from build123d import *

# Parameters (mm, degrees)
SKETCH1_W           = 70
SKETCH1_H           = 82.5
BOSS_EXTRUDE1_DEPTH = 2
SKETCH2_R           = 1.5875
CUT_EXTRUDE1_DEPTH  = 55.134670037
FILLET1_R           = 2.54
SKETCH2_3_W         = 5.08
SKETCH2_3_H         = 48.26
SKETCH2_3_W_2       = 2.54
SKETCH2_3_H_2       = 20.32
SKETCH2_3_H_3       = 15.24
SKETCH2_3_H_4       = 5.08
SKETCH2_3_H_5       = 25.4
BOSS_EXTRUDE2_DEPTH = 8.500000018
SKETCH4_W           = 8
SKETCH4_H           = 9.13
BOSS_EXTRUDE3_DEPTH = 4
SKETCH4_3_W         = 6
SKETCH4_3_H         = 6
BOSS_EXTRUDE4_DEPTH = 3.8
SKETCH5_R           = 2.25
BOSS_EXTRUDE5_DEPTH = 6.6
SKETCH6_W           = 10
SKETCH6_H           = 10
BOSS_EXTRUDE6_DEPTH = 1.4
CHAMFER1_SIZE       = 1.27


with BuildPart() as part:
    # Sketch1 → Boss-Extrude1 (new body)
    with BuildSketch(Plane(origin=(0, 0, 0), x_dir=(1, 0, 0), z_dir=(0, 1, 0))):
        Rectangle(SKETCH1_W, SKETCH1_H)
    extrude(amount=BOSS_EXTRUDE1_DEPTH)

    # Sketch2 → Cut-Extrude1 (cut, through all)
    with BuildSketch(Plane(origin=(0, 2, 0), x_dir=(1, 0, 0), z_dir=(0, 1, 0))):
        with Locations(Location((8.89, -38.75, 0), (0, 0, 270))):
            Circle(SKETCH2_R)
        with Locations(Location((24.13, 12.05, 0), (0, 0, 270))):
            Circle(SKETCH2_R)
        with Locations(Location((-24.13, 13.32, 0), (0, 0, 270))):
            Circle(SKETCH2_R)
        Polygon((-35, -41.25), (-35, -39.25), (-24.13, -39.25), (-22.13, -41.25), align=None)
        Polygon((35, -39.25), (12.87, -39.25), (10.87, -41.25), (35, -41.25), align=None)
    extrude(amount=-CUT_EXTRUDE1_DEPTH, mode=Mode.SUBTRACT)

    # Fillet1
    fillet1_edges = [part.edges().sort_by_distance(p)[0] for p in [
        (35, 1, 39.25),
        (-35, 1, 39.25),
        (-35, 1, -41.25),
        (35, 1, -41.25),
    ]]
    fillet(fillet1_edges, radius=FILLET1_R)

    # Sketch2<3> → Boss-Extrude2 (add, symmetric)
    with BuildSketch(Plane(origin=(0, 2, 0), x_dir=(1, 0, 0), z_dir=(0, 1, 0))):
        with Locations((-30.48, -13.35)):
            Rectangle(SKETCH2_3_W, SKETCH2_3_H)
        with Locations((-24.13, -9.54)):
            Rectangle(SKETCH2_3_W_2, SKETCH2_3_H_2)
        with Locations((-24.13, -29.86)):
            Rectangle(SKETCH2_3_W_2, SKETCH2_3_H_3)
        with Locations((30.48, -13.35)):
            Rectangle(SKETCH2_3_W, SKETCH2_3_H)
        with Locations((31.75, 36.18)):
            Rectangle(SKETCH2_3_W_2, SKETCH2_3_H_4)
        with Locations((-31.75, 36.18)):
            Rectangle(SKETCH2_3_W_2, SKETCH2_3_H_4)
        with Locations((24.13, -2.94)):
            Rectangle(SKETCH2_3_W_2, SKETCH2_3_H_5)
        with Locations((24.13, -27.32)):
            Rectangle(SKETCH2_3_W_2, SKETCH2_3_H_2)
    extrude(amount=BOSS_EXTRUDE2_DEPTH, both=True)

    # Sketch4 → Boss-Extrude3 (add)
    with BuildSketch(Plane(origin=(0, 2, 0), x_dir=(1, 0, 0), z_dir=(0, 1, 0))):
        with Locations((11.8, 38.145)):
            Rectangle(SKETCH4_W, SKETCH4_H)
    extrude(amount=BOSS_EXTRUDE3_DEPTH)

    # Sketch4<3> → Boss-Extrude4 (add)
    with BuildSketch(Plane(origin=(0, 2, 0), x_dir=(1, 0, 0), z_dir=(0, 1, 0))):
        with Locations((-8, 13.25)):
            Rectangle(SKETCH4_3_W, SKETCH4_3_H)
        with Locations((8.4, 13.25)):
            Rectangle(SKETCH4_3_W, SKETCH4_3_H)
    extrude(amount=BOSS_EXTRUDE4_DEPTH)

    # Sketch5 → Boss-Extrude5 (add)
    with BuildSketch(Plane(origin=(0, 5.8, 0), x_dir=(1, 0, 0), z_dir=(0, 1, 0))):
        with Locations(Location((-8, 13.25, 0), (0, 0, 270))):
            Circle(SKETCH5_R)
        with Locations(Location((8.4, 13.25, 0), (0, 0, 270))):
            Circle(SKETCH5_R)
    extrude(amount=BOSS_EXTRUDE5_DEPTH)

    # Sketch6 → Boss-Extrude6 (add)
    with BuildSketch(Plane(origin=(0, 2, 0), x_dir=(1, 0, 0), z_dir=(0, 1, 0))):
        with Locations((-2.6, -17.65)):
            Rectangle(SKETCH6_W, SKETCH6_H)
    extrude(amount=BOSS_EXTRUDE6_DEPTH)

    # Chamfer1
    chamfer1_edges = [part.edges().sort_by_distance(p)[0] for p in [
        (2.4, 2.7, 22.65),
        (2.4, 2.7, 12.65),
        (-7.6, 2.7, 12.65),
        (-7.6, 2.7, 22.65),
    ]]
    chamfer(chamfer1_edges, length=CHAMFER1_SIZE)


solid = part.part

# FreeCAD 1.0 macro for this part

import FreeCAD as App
import Part
import Sketcher
from FreeCAD import Vector
Q = App.Units.Quantity


def edges_at(feature, points):
    """Names of the edges that pass closest to the given points."""
    edges = feature.Shape.Edges
    near = lambda p: min(range(len(edges)), key=lambda i: edges[i].distToShape(Part.Vertex(*p))[0])
    return sorted({f"Edge{near(p) + 1}" for p in points})

doc = App.newDocument("Part")
body = doc.addObject("PartDesign::Body", "Body")

# Sketch on XZ plane
sketch1 = doc.addObject("Sketcher::SketchObject", "Sketch")
body.addObject(sketch1)
sketch1.AttachmentSupport = (doc.XZ_Plane, [""])
sketch1.MapMode = "FlatFace"
sketch1.addGeometry([
    Part.LineSegment(Vector(-35, -41, 0), Vector(-35, 41, 0)),
    Part.LineSegment(Vector(-35, 41, 0), Vector(35, 41, 0)),
    Part.LineSegment(Vector(35, 41, 0), Vector(35, -41, 0)),
    Part.LineSegment(Vector(35, -41, 0), Vector(-35, -41, 0)),
], False)
sketch1.addConstraint([
    Sketcher.Constraint("Coincident", 0, 2, 1, 1),
    Sketcher.Constraint("Coincident", 1, 2, 2, 1),
    Sketcher.Constraint("Coincident", 2, 2, 3, 1),
    Sketcher.Constraint("Coincident", 3, 2, 0, 1),
    Sketcher.Constraint("Vertical", 0),
    Sketcher.Constraint("Horizontal", 1),
    Sketcher.Constraint("Vertical", 2),
    Sketcher.Constraint("Horizontal", 3),
    Sketcher.Constraint("Symmetric", 0, 2, 2, 2, -1, 1),
    Sketcher.Constraint("DistanceX", 1, 1, 1, 2, Q("70 mm")),
    Sketcher.Constraint("DistanceY", 0, 1, 0, 2, Q("82.5 mm")),
])
pad1 = doc.addObject("PartDesign::Pad", "Pad")
body.addObject(pad1)
pad1.Profile = sketch1
pad1.Length = 2
pad1.Reversed = True

# Sketch on XZ plane
sketch2 = doc.addObject("Sketcher::SketchObject", "Sketch001")
body.addObject(sketch2)
sketch2.AttachmentSupport = (doc.XZ_Plane, [""])
sketch2.MapMode = "FlatFace"
sketch2.AttachmentOffset = App.Placement(Vector(0, 0, -2), App.Rotation())
sketch2.addGeometry([
    Part.Circle(Vector(8.9, 38.8, 0), Vector(0, 0, 1), 1.6),  # 0
    Part.Circle(Vector(24.1, -12.1, 0), Vector(0, 0, 1), 1.6),  # 1
    Part.Circle(Vector(-24.1, -13.3, 0), Vector(0, 0, 1), 1.6),  # 2
    Part.LineSegment(Vector(-35, 39.2, 0), Vector(-35, 41.2, 0)),  # 3
    Part.LineSegment(Vector(-35, 41.2, 0), Vector(-22.1, 41.2, 0)),  # 4
    Part.LineSegment(Vector(-22.1, 41.2, 0), Vector(-24.1, 39.2, 0)),  # 5
    Part.LineSegment(Vector(-24.1, 39.2, 0), Vector(-35, 39.2, 0)),  # 6
    Part.LineSegment(Vector(35, 39.2, 0), Vector(12.9, 39.2, 0)),  # 7
    Part.LineSegment(Vector(12.9, 39.2, 0), Vector(10.9, 41.2, 0)),  # 8
    Part.LineSegment(Vector(10.9, 41.2, 0), Vector(35, 41.2, 0)),  # 9
    Part.LineSegment(Vector(35, 41.2, 0), Vector(35, 39.2, 0)),  # 10
], False)
sketch2.addConstraint([
    Sketcher.Constraint("Coincident", 3, 2, 4, 1),
    Sketcher.Constraint("Coincident", 4, 2, 5, 1),
    Sketcher.Constraint("Coincident", 5, 2, 6, 1),
    Sketcher.Constraint("Coincident", 6, 2, 3, 1),
    Sketcher.Constraint("Coincident", 7, 2, 8, 1),
    Sketcher.Constraint("Coincident", 8, 2, 9, 1),
    Sketcher.Constraint("Coincident", 9, 2, 10, 1),
    Sketcher.Constraint("Coincident", 10, 2, 7, 1),
    Sketcher.Constraint("Vertical", 3),
    Sketcher.Constraint("Horizontal", 4),
    Sketcher.Constraint("Horizontal", 6),
    Sketcher.Constraint("Horizontal", 7),
    Sketcher.Constraint("Horizontal", 9),
    Sketcher.Constraint("Vertical", 10),
    Sketcher.Constraint("Equal", 0, 1),
    Sketcher.Constraint("Equal", 1, 2),
    Sketcher.Constraint("Symmetric", 3, 2, 9, 2, -2),
    Sketcher.Constraint("Perpendicular", 5, 8),
    Sketcher.Constraint("Horizontal", 6, 2, 7, 2),
    Sketcher.Constraint("Vertical", 2, 3, 5, 2),
    Sketcher.Constraint("Equal", 5, 8),
    Sketcher.Constraint("DistanceY", 3, 1, 3, 2, Q("2 mm")),
    Sketcher.Constraint("Diameter", 0, Q("3.175 mm")),
    Sketcher.Constraint("DistanceX", 3, 2, -1, 1, Q("35 mm")),
    Sketcher.Constraint("DistanceX", 4, 2, 7, 2, Q("35 mm")),
    Sketcher.Constraint("DistanceX", 4, 1, 4, 2, Q("12.87 mm")),
    Sketcher.Constraint("DistanceY", 1, 3, 0, 3, Q("50.8 mm")),
    Sketcher.Constraint("DistanceY", 0, 3, 3, 2, Q("2.5 mm")),
    Sketcher.Constraint("DistanceX", -1, 1, 0, 3, Q("8.89 mm")),
    Sketcher.Constraint("DistanceY", -1, 1, 0, 3, Q("38.75 mm")),
    Sketcher.Constraint("DistanceX", -1, 1, 1, 3, Q("24.13 mm")),
    Sketcher.Constraint("DistanceY", 2, 3, -1, 1, Q("13.32 mm")),
])
pocket1 = doc.addObject("PartDesign::Pocket", "Pocket")
body.addObject(pocket1)
pocket1.Profile = sketch2
pocket1.Type = "ThroughAll"
pocket1.Reversed = True
doc.recompute()

fillet = doc.addObject("PartDesign::Fillet", "Fillet")
body.addObject(fillet)
fillet.Base = (pocket1, edges_at(pocket1, [
    (35, 1, 39.25),
    (-35, 1, 39.25),
    (-35, 1, -41.25),
    (35, 1, -41.25),
]))
fillet.Radius = 2.54

# Sketch on XZ plane
sketch3 = doc.addObject("Sketcher::SketchObject", "Sketch002")
body.addObject(sketch3)
sketch3.AttachmentSupport = (doc.XZ_Plane, [""])
sketch3.MapMode = "FlatFace"
sketch3.AttachmentOffset = App.Placement(Vector(0, 0, -2), App.Rotation())
sketch3.addGeometry([
    Part.LineSegment(Vector(-33, -10.8, 0), Vector(-33, 37.5, 0)),  # 0
    Part.LineSegment(Vector(-33, 37.5, 0), Vector(-27.9, 37.5, 0)),  # 1
    Part.LineSegment(Vector(-27.9, 37.5, 0), Vector(-27.9, -10.8, 0)),  # 2
    Part.LineSegment(Vector(-27.9, -10.8, 0), Vector(-33, -10.8, 0)),  # 3
    Part.LineSegment(Vector(-25.4, -0.6, 0), Vector(-25.4, 19.7, 0)),  # 4
    Part.LineSegment(Vector(-25.4, 19.7, 0), Vector(-22.9, 19.7, 0)),  # 5
    Part.LineSegment(Vector(-22.9, 19.7, 0), Vector(-22.9, -0.6, 0)),  # 6
    Part.LineSegment(Vector(-22.9, -0.6, 0), Vector(-25.4, -0.6, 0)),  # 7
    Part.LineSegment(Vector(-25.4, 22.2, 0), Vector(-25.4, 37.5, 0)),  # 8
    Part.LineSegment(Vector(-25.4, 37.5, 0), Vector(-22.9, 37.5, 0)),  # 9
    Part.LineSegment(Vector(-22.9, 37.5, 0), Vector(-22.9, 22.2, 0)),  # 10
    Part.LineSegment(Vector(-22.9, 22.2, 0), Vector(-25.4, 22.2, 0)),  # 11
    Part.LineSegment(Vector(27.9, -10.8, 0), Vector(27.9, 37.5, 0)),  # 12
    Part.LineSegment(Vector(27.9, 37.5, 0), Vector(33, 37.5, 0)),  # 13
    Part.LineSegment(Vector(33, 37.5, 0), Vector(33, -10.8, 0)),  # 14
    Part.LineSegment(Vector(33, -10.8, 0), Vector(27.9, -10.8, 0)),  # 15
    Part.LineSegment(Vector(30.5, -38.7, 0), Vector(30.5, -33.6, 0)),  # 16
    Part.LineSegment(Vector(30.5, -33.6, 0), Vector(33, -33.6, 0)),  # 17
    Part.LineSegment(Vector(33, -33.6, 0), Vector(33, -38.7, 0)),  # 18
    Part.LineSegment(Vector(33, -38.7, 0), Vector(30.5, -38.7, 0)),  # 19
    Part.LineSegment(Vector(-33, -38.7, 0), Vector(-33, -33.6, 0)),  # 20
    Part.LineSegment(Vector(-33, -33.6, 0), Vector(-30.5, -33.6, 0)),  # 21
    Part.LineSegment(Vector(-30.5, -33.6, 0), Vector(-30.5, -38.7, 0)),  # 22
    Part.LineSegment(Vector(-30.5, -38.7, 0), Vector(-33, -38.7, 0)),  # 23
    Part.LineSegment(Vector(22.9, -9.8, 0), Vector(22.9, 15.6, 0)),  # 24
    Part.LineSegment(Vector(22.9, 15.6, 0), Vector(25.4, 15.6, 0)),  # 25
    Part.LineSegment(Vector(25.4, 15.6, 0), Vector(25.4, -9.8, 0)),  # 26
    Part.LineSegment(Vector(25.4, -9.8, 0), Vector(22.9, -9.8, 0)),  # 27
    Part.LineSegment(Vector(22.9, 17.2, 0), Vector(22.9, 37.5, 0)),  # 28
    Part.LineSegment(Vector(22.9, 37.5, 0), Vector(25.4, 37.5, 0)),  # 29
    Part.LineSegment(Vector(25.4, 37.5, 0), Vector(25.4, 17.2, 0)),  # 30
    Part.LineSegment(Vector(25.4, 17.2, 0), Vector(22.9, 17.2, 0)),  # 31
], False)
sketch3.addConstraint([
    Sketcher.Constraint("Coincident", 0, 2, 1, 1),
    Sketcher.Constraint("Coincident", 1, 2, 2, 1),
    Sketcher.Constraint("Coincident", 2, 2, 3, 1),
    Sketcher.Constraint("Coincident", 3, 2, 0, 1),
    Sketcher.Constraint("Coincident", 4, 2, 5, 1),
    Sketcher.Constraint("Coincident", 5, 2, 6, 1),
    Sketcher.Constraint("Coincident", 6, 2, 7, 1),
    Sketcher.Constraint("Coincident", 7, 2, 4, 1),
    Sketcher.Constraint("Coincident", 8, 2, 9, 1),
    Sketcher.Constraint("Coincident", 9, 2, 10, 1),
    Sketcher.Constraint("Coincident", 10, 2, 11, 1),
    Sketcher.Constraint("Coincident", 11, 2, 8, 1),
    Sketcher.Constraint("Coincident", 12, 2, 13, 1),
    Sketcher.Constraint("Coincident", 13, 2, 14, 1),
    Sketcher.Constraint("Coincident", 14, 2, 15, 1),
    Sketcher.Constraint("Coincident", 15, 2, 12, 1),
    Sketcher.Constraint("Coincident", 16, 2, 17, 1),
    Sketcher.Constraint("Coincident", 17, 2, 18, 1),
    Sketcher.Constraint("Coincident", 18, 2, 19, 1),
    Sketcher.Constraint("Coincident", 19, 2, 16, 1),
    Sketcher.Constraint("Coincident", 20, 2, 21, 1),
    Sketcher.Constraint("Coincident", 21, 2, 22, 1),
    Sketcher.Constraint("Coincident", 22, 2, 23, 1),
    Sketcher.Constraint("Coincident", 23, 2, 20, 1),
    Sketcher.Constraint("Coincident", 24, 2, 25, 1),
    Sketcher.Constraint("Coincident", 25, 2, 26, 1),
    Sketcher.Constraint("Coincident", 26, 2, 27, 1),
    Sketcher.Constraint("Coincident", 27, 2, 24, 1),
    Sketcher.Constraint("Coincident", 28, 2, 29, 1),
    Sketcher.Constraint("Coincident", 29, 2, 30, 1),
    Sketcher.Constraint("Coincident", 30, 2, 31, 1),
    Sketcher.Constraint("Coincident", 31, 2, 28, 1),
    Sketcher.Constraint("Vertical", 0),
    Sketcher.Constraint("Horizontal", 1),
    Sketcher.Constraint("Vertical", 2),
    Sketcher.Constraint("Horizontal", 3),
    Sketcher.Constraint("Vertical", 4),
    Sketcher.Constraint("Horizontal", 5),
    Sketcher.Constraint("Vertical", 6),
    Sketcher.Constraint("Horizontal", 7),
    Sketcher.Constraint("Vertical", 8),
    Sketcher.Constraint("Horizontal", 9),
    Sketcher.Constraint("Vertical", 10),
    Sketcher.Constraint("Horizontal", 11),
    Sketcher.Constraint("Vertical", 12),
    Sketcher.Constraint("Horizontal", 13),
    Sketcher.Constraint("Vertical", 14),
    Sketcher.Constraint("Horizontal", 15),
    Sketcher.Constraint("Vertical", 16),
    Sketcher.Constraint("Horizontal", 17),
    Sketcher.Constraint("Vertical", 18),
    Sketcher.Constraint("Horizontal", 19),
    Sketcher.Constraint("Vertical", 20),
    Sketcher.Constraint("Horizontal", 21),
    Sketcher.Constraint("Vertical", 22),
    Sketcher.Constraint("Horizontal", 23),
    Sketcher.Constraint("Vertical", 24),
    Sketcher.Constraint("Horizontal", 25),
    Sketcher.Constraint("Vertical", 26),
    Sketcher.Constraint("Horizontal", 27),
    Sketcher.Constraint("Vertical", 28),
    Sketcher.Constraint("Horizontal", 29),
    Sketcher.Constraint("Vertical", 30),
    Sketcher.Constraint("Horizontal", 31),
    Sketcher.Constraint("Symmetric", 1, 2, 12, 2, -2),
    Sketcher.Constraint("Symmetric", 3, 2, 14, 2, -2),
    Sketcher.Constraint("Symmetric", 17, 2, 20, 2, -2),
    Sketcher.Constraint("Symmetric", 19, 2, 22, 2, -2),
    Sketcher.Constraint("Symmetric", 9, 2, 28, 2, -2),
    Sketcher.Constraint("Horizontal", 1, 2, 8, 2),
    Sketcher.Constraint("Vertical", 7, 2, 8, 2),
    Sketcher.Constraint("Vertical", 6, 2, 9, 2),
    Sketcher.Constraint("Vertical", 14, 2, 17, 2),
    Sketcher.Constraint("Vertical", 27, 2, 28, 2),
    Sketcher.Constraint("Vertical", 26, 2, 29, 2),
    Sketcher.Constraint("Equal", 11, 17),
    Sketcher.Constraint("Equal", 23, 25),
    Sketcher.Constraint("Equal", 15, 16),
    Sketcher.Constraint("Equal", 6, 28),
    Sketcher.Constraint("DistanceY", 24, 1, 24, 2, Q("25.4 mm")),
    Sketcher.Constraint("DistanceX", 1, 1, 1, 2, Q("5.08 mm")),
    Sketcher.Constraint("DistanceX", 5, 1, 5, 2, Q("2.54 mm")),
    Sketcher.Constraint("DistanceY", 0, 1, 0, 2, Q("48.26 mm")),
    Sketcher.Constraint("DistanceY", 4, 1, 4, 2, Q("20.32 mm")),
    Sketcher.Constraint("DistanceY", 8, 1, 8, 2, Q("15.24 mm")),
    Sketcher.Constraint("DistanceX", 4, 2, -1, 1, Q("25.4 mm")),
    Sketcher.Constraint("DistanceY", -1, 1, 4, 2, Q("19.7 mm")),
    Sketcher.Constraint("DistanceY", 6, 2, 1, 2, Q("38.1 mm")),
    Sketcher.Constraint("DistanceX", 9, 2, 12, 2, Q("50.8 mm")),
    Sketcher.Constraint("DistanceY", 22, 2, 7, 2, Q("38.1 mm")),
    Sketcher.Constraint("DistanceY", -1, 1, 24, 2, Q("15.64 mm")),
])
pad2 = doc.addObject("PartDesign::Pad", "Pad001")
body.addObject(pad2)
pad2.Profile = sketch3
pad2.Length = 17
pad2.Midplane = True

# Sketch on XZ plane
sketch4 = doc.addObject("Sketcher::SketchObject", "Sketch003")
body.addObject(sketch4)
sketch4.AttachmentSupport = (doc.XZ_Plane, [""])
sketch4.MapMode = "FlatFace"
sketch4.AttachmentOffset = App.Placement(Vector(0, 0, -2), App.Rotation())
sketch4.addGeometry([
    Part.LineSegment(Vector(8, -43, 0), Vector(8, -34, 0)),
    Part.LineSegment(Vector(8, -34, 0), Vector(16, -34, 0)),
    Part.LineSegment(Vector(16, -34, 0), Vector(16, -43, 0)),
    Part.LineSegment(Vector(16, -43, 0), Vector(8, -43, 0)),
], False)
sketch4.addConstraint([
    Sketcher.Constraint("Coincident", 0, 2, 1, 1),
    Sketcher.Constraint("Coincident", 1, 2, 2, 1),
    Sketcher.Constraint("Coincident", 2, 2, 3, 1),
    Sketcher.Constraint("Coincident", 3, 2, 0, 1),
    Sketcher.Constraint("Vertical", 0),
    Sketcher.Constraint("Horizontal", 1),
    Sketcher.Constraint("Vertical", 2),
    Sketcher.Constraint("Horizontal", 3),
    Sketcher.Constraint("DistanceX", 1, 1, 1, 2, Q("8 mm")),
    Sketcher.Constraint("DistanceY", 0, 1, 0, 2, Q("9.13 mm")),
    Sketcher.Constraint("DistanceX", -1, 1, 0, 2, Q("7.8 mm")),
    Sketcher.Constraint("DistanceY", 0, 2, -1, 1, Q("33.58 mm")),
])
pad3 = doc.addObject("PartDesign::Pad", "Pad002")
body.addObject(pad3)
pad3.Profile = sketch4
pad3.Length = 4
pad3.Reversed = True

# Sketch on XZ plane
sketch5 = doc.addObject("Sketcher::SketchObject", "Sketch004")
body.addObject(sketch5)
sketch5.AttachmentSupport = (doc.XZ_Plane, [""])
sketch5.MapMode = "FlatFace"
sketch5.AttachmentOffset = App.Placement(Vector(0, 0, -2), App.Rotation())
sketch5.addGeometry([
    Part.LineSegment(Vector(-11, -16, 0), Vector(-11, -10, 0)),  # 0
    Part.LineSegment(Vector(-11, -10, 0), Vector(-5, -10, 0)),  # 1
    Part.LineSegment(Vector(-5, -10, 0), Vector(-5, -16, 0)),  # 2
    Part.LineSegment(Vector(-5, -16, 0), Vector(-11, -16, 0)),  # 3
    Part.LineSegment(Vector(5, -16, 0), Vector(5, -10, 0)),  # 4
    Part.LineSegment(Vector(5, -10, 0), Vector(11, -10, 0)),  # 5
    Part.LineSegment(Vector(11, -10, 0), Vector(11, -16, 0)),  # 6
    Part.LineSegment(Vector(11, -16, 0), Vector(5, -16, 0)),  # 7
], False)
sketch5.addConstraint([
    Sketcher.Constraint("Coincident", 0, 2, 1, 1),
    Sketcher.Constraint("Coincident", 1, 2, 2, 1),
    Sketcher.Constraint("Coincident", 2, 2, 3, 1),
    Sketcher.Constraint("Coincident", 3, 2, 0, 1),
    Sketcher.Constraint("Coincident", 4, 2, 5, 1),
    Sketcher.Constraint("Coincident", 5, 2, 6, 1),
    Sketcher.Constraint("Coincident", 6, 2, 7, 1),
    Sketcher.Constraint("Coincident", 7, 2, 4, 1),
    Sketcher.Constraint("Vertical", 0),
    Sketcher.Constraint("Horizontal", 1),
    Sketcher.Constraint("Vertical", 2),
    Sketcher.Constraint("Horizontal", 3),
    Sketcher.Constraint("Vertical", 4),
    Sketcher.Constraint("Horizontal", 5),
    Sketcher.Constraint("Vertical", 6),
    Sketcher.Constraint("Horizontal", 7),
    Sketcher.Constraint("Horizontal", 1, 2, 4, 2),
    Sketcher.Constraint("Horizontal", 3, 2, 6, 2),
    Sketcher.Constraint("Equal", 3, 5),
    Sketcher.Constraint("Equal", 7, 0),
    Sketcher.Constraint("DistanceX", 1, 1, 1, 2, Q("6 mm")),
    Sketcher.Constraint("DistanceX", 0, 2, -1, 1, Q("11 mm")),
    Sketcher.Constraint("DistanceX", -1, 1, 4, 2, Q("5.4 mm")),
    Sketcher.Constraint("DistanceY", 0, 2, -1, 1, Q("10.25 mm")),
])
pad4 = doc.addObject("PartDesign::Pad", "Pad003")
body.addObject(pad4)
pad4.Profile = sketch5
pad4.Length = 3.8
pad4.Reversed = True

# Sketch on XZ plane
sketch6 = doc.addObject("Sketcher::SketchObject", "Sketch005")
body.addObject(sketch6)
sketch6.AttachmentSupport = (doc.XZ_Plane, [""])
sketch6.MapMode = "FlatFace"
sketch6.AttachmentOffset = App.Placement(Vector(0, 0, -5.8), App.Rotation())
sketch6.addGeometry([
    Part.Circle(Vector(-8, -13.2, 0), Vector(0, 0, 1), 2.2),
    Part.Circle(Vector(8.4, -13.2, 0), Vector(0, 0, 1), 2.2),
], False)
sketch6.addConstraint([
    Sketcher.Constraint("Equal", 0, 1),
    Sketcher.Constraint("Horizontal", 0, 3, 1, 3),
    Sketcher.Constraint("Diameter", 0, Q("4.5 mm")),
    Sketcher.Constraint("DistanceX", 0, 3, -1, 1, Q("8 mm")),
    Sketcher.Constraint("DistanceX", -1, 1, 1, 3, Q("8.4 mm")),
    Sketcher.Constraint("DistanceY", 0, 3, -1, 1, Q("13.25 mm")),
])
pad5 = doc.addObject("PartDesign::Pad", "Pad004")
body.addObject(pad5)
pad5.Profile = sketch6
pad5.Length = 6.6
pad5.Reversed = True

# Sketch on XZ plane
sketch7 = doc.addObject("Sketcher::SketchObject", "Sketch006")
body.addObject(sketch7)
sketch7.AttachmentSupport = (doc.XZ_Plane, [""])
sketch7.MapMode = "FlatFace"
sketch7.AttachmentOffset = App.Placement(Vector(0, 0, -2), App.Rotation())
sketch7.addGeometry([
    Part.LineSegment(Vector(-8, 13, 0), Vector(-8, 23, 0)),
    Part.LineSegment(Vector(-8, 23, 0), Vector(2, 23, 0)),
    Part.LineSegment(Vector(2, 23, 0), Vector(2, 13, 0)),
    Part.LineSegment(Vector(2, 13, 0), Vector(-8, 13, 0)),
], False)
sketch7.addConstraint([
    Sketcher.Constraint("Coincident", 0, 2, 1, 1),
    Sketcher.Constraint("Coincident", 1, 2, 2, 1),
    Sketcher.Constraint("Coincident", 2, 2, 3, 1),
    Sketcher.Constraint("Coincident", 3, 2, 0, 1),
    Sketcher.Constraint("Vertical", 0),
    Sketcher.Constraint("Horizontal", 1),
    Sketcher.Constraint("Vertical", 2),
    Sketcher.Constraint("Horizontal", 3),
    Sketcher.Constraint("Equal", 3, 0),
    Sketcher.Constraint("DistanceX", 1, 1, 1, 2, Q("10 mm")),
    Sketcher.Constraint("DistanceX", 0, 2, -1, 1, Q("7.6 mm")),
    Sketcher.Constraint("DistanceY", -1, 1, 0, 2, Q("22.65 mm")),
])
pad6 = doc.addObject("PartDesign::Pad", "Pad005")
body.addObject(pad6)
pad6.Profile = sketch7
pad6.Length = 1.4
pad6.Reversed = True
doc.recompute()

chamfer = doc.addObject("PartDesign::Chamfer", "Chamfer")
body.addObject(chamfer)
chamfer.Base = (pad6, edges_at(pad6, [
    (2.4, 2.7, 22.65),
    (2.4, 2.7, 12.65),
    (-7.6, 2.7, 12.65),
    (-7.6, 2.7, 22.65),
]))
chamfer.Size = 1.27

doc.recompute()
